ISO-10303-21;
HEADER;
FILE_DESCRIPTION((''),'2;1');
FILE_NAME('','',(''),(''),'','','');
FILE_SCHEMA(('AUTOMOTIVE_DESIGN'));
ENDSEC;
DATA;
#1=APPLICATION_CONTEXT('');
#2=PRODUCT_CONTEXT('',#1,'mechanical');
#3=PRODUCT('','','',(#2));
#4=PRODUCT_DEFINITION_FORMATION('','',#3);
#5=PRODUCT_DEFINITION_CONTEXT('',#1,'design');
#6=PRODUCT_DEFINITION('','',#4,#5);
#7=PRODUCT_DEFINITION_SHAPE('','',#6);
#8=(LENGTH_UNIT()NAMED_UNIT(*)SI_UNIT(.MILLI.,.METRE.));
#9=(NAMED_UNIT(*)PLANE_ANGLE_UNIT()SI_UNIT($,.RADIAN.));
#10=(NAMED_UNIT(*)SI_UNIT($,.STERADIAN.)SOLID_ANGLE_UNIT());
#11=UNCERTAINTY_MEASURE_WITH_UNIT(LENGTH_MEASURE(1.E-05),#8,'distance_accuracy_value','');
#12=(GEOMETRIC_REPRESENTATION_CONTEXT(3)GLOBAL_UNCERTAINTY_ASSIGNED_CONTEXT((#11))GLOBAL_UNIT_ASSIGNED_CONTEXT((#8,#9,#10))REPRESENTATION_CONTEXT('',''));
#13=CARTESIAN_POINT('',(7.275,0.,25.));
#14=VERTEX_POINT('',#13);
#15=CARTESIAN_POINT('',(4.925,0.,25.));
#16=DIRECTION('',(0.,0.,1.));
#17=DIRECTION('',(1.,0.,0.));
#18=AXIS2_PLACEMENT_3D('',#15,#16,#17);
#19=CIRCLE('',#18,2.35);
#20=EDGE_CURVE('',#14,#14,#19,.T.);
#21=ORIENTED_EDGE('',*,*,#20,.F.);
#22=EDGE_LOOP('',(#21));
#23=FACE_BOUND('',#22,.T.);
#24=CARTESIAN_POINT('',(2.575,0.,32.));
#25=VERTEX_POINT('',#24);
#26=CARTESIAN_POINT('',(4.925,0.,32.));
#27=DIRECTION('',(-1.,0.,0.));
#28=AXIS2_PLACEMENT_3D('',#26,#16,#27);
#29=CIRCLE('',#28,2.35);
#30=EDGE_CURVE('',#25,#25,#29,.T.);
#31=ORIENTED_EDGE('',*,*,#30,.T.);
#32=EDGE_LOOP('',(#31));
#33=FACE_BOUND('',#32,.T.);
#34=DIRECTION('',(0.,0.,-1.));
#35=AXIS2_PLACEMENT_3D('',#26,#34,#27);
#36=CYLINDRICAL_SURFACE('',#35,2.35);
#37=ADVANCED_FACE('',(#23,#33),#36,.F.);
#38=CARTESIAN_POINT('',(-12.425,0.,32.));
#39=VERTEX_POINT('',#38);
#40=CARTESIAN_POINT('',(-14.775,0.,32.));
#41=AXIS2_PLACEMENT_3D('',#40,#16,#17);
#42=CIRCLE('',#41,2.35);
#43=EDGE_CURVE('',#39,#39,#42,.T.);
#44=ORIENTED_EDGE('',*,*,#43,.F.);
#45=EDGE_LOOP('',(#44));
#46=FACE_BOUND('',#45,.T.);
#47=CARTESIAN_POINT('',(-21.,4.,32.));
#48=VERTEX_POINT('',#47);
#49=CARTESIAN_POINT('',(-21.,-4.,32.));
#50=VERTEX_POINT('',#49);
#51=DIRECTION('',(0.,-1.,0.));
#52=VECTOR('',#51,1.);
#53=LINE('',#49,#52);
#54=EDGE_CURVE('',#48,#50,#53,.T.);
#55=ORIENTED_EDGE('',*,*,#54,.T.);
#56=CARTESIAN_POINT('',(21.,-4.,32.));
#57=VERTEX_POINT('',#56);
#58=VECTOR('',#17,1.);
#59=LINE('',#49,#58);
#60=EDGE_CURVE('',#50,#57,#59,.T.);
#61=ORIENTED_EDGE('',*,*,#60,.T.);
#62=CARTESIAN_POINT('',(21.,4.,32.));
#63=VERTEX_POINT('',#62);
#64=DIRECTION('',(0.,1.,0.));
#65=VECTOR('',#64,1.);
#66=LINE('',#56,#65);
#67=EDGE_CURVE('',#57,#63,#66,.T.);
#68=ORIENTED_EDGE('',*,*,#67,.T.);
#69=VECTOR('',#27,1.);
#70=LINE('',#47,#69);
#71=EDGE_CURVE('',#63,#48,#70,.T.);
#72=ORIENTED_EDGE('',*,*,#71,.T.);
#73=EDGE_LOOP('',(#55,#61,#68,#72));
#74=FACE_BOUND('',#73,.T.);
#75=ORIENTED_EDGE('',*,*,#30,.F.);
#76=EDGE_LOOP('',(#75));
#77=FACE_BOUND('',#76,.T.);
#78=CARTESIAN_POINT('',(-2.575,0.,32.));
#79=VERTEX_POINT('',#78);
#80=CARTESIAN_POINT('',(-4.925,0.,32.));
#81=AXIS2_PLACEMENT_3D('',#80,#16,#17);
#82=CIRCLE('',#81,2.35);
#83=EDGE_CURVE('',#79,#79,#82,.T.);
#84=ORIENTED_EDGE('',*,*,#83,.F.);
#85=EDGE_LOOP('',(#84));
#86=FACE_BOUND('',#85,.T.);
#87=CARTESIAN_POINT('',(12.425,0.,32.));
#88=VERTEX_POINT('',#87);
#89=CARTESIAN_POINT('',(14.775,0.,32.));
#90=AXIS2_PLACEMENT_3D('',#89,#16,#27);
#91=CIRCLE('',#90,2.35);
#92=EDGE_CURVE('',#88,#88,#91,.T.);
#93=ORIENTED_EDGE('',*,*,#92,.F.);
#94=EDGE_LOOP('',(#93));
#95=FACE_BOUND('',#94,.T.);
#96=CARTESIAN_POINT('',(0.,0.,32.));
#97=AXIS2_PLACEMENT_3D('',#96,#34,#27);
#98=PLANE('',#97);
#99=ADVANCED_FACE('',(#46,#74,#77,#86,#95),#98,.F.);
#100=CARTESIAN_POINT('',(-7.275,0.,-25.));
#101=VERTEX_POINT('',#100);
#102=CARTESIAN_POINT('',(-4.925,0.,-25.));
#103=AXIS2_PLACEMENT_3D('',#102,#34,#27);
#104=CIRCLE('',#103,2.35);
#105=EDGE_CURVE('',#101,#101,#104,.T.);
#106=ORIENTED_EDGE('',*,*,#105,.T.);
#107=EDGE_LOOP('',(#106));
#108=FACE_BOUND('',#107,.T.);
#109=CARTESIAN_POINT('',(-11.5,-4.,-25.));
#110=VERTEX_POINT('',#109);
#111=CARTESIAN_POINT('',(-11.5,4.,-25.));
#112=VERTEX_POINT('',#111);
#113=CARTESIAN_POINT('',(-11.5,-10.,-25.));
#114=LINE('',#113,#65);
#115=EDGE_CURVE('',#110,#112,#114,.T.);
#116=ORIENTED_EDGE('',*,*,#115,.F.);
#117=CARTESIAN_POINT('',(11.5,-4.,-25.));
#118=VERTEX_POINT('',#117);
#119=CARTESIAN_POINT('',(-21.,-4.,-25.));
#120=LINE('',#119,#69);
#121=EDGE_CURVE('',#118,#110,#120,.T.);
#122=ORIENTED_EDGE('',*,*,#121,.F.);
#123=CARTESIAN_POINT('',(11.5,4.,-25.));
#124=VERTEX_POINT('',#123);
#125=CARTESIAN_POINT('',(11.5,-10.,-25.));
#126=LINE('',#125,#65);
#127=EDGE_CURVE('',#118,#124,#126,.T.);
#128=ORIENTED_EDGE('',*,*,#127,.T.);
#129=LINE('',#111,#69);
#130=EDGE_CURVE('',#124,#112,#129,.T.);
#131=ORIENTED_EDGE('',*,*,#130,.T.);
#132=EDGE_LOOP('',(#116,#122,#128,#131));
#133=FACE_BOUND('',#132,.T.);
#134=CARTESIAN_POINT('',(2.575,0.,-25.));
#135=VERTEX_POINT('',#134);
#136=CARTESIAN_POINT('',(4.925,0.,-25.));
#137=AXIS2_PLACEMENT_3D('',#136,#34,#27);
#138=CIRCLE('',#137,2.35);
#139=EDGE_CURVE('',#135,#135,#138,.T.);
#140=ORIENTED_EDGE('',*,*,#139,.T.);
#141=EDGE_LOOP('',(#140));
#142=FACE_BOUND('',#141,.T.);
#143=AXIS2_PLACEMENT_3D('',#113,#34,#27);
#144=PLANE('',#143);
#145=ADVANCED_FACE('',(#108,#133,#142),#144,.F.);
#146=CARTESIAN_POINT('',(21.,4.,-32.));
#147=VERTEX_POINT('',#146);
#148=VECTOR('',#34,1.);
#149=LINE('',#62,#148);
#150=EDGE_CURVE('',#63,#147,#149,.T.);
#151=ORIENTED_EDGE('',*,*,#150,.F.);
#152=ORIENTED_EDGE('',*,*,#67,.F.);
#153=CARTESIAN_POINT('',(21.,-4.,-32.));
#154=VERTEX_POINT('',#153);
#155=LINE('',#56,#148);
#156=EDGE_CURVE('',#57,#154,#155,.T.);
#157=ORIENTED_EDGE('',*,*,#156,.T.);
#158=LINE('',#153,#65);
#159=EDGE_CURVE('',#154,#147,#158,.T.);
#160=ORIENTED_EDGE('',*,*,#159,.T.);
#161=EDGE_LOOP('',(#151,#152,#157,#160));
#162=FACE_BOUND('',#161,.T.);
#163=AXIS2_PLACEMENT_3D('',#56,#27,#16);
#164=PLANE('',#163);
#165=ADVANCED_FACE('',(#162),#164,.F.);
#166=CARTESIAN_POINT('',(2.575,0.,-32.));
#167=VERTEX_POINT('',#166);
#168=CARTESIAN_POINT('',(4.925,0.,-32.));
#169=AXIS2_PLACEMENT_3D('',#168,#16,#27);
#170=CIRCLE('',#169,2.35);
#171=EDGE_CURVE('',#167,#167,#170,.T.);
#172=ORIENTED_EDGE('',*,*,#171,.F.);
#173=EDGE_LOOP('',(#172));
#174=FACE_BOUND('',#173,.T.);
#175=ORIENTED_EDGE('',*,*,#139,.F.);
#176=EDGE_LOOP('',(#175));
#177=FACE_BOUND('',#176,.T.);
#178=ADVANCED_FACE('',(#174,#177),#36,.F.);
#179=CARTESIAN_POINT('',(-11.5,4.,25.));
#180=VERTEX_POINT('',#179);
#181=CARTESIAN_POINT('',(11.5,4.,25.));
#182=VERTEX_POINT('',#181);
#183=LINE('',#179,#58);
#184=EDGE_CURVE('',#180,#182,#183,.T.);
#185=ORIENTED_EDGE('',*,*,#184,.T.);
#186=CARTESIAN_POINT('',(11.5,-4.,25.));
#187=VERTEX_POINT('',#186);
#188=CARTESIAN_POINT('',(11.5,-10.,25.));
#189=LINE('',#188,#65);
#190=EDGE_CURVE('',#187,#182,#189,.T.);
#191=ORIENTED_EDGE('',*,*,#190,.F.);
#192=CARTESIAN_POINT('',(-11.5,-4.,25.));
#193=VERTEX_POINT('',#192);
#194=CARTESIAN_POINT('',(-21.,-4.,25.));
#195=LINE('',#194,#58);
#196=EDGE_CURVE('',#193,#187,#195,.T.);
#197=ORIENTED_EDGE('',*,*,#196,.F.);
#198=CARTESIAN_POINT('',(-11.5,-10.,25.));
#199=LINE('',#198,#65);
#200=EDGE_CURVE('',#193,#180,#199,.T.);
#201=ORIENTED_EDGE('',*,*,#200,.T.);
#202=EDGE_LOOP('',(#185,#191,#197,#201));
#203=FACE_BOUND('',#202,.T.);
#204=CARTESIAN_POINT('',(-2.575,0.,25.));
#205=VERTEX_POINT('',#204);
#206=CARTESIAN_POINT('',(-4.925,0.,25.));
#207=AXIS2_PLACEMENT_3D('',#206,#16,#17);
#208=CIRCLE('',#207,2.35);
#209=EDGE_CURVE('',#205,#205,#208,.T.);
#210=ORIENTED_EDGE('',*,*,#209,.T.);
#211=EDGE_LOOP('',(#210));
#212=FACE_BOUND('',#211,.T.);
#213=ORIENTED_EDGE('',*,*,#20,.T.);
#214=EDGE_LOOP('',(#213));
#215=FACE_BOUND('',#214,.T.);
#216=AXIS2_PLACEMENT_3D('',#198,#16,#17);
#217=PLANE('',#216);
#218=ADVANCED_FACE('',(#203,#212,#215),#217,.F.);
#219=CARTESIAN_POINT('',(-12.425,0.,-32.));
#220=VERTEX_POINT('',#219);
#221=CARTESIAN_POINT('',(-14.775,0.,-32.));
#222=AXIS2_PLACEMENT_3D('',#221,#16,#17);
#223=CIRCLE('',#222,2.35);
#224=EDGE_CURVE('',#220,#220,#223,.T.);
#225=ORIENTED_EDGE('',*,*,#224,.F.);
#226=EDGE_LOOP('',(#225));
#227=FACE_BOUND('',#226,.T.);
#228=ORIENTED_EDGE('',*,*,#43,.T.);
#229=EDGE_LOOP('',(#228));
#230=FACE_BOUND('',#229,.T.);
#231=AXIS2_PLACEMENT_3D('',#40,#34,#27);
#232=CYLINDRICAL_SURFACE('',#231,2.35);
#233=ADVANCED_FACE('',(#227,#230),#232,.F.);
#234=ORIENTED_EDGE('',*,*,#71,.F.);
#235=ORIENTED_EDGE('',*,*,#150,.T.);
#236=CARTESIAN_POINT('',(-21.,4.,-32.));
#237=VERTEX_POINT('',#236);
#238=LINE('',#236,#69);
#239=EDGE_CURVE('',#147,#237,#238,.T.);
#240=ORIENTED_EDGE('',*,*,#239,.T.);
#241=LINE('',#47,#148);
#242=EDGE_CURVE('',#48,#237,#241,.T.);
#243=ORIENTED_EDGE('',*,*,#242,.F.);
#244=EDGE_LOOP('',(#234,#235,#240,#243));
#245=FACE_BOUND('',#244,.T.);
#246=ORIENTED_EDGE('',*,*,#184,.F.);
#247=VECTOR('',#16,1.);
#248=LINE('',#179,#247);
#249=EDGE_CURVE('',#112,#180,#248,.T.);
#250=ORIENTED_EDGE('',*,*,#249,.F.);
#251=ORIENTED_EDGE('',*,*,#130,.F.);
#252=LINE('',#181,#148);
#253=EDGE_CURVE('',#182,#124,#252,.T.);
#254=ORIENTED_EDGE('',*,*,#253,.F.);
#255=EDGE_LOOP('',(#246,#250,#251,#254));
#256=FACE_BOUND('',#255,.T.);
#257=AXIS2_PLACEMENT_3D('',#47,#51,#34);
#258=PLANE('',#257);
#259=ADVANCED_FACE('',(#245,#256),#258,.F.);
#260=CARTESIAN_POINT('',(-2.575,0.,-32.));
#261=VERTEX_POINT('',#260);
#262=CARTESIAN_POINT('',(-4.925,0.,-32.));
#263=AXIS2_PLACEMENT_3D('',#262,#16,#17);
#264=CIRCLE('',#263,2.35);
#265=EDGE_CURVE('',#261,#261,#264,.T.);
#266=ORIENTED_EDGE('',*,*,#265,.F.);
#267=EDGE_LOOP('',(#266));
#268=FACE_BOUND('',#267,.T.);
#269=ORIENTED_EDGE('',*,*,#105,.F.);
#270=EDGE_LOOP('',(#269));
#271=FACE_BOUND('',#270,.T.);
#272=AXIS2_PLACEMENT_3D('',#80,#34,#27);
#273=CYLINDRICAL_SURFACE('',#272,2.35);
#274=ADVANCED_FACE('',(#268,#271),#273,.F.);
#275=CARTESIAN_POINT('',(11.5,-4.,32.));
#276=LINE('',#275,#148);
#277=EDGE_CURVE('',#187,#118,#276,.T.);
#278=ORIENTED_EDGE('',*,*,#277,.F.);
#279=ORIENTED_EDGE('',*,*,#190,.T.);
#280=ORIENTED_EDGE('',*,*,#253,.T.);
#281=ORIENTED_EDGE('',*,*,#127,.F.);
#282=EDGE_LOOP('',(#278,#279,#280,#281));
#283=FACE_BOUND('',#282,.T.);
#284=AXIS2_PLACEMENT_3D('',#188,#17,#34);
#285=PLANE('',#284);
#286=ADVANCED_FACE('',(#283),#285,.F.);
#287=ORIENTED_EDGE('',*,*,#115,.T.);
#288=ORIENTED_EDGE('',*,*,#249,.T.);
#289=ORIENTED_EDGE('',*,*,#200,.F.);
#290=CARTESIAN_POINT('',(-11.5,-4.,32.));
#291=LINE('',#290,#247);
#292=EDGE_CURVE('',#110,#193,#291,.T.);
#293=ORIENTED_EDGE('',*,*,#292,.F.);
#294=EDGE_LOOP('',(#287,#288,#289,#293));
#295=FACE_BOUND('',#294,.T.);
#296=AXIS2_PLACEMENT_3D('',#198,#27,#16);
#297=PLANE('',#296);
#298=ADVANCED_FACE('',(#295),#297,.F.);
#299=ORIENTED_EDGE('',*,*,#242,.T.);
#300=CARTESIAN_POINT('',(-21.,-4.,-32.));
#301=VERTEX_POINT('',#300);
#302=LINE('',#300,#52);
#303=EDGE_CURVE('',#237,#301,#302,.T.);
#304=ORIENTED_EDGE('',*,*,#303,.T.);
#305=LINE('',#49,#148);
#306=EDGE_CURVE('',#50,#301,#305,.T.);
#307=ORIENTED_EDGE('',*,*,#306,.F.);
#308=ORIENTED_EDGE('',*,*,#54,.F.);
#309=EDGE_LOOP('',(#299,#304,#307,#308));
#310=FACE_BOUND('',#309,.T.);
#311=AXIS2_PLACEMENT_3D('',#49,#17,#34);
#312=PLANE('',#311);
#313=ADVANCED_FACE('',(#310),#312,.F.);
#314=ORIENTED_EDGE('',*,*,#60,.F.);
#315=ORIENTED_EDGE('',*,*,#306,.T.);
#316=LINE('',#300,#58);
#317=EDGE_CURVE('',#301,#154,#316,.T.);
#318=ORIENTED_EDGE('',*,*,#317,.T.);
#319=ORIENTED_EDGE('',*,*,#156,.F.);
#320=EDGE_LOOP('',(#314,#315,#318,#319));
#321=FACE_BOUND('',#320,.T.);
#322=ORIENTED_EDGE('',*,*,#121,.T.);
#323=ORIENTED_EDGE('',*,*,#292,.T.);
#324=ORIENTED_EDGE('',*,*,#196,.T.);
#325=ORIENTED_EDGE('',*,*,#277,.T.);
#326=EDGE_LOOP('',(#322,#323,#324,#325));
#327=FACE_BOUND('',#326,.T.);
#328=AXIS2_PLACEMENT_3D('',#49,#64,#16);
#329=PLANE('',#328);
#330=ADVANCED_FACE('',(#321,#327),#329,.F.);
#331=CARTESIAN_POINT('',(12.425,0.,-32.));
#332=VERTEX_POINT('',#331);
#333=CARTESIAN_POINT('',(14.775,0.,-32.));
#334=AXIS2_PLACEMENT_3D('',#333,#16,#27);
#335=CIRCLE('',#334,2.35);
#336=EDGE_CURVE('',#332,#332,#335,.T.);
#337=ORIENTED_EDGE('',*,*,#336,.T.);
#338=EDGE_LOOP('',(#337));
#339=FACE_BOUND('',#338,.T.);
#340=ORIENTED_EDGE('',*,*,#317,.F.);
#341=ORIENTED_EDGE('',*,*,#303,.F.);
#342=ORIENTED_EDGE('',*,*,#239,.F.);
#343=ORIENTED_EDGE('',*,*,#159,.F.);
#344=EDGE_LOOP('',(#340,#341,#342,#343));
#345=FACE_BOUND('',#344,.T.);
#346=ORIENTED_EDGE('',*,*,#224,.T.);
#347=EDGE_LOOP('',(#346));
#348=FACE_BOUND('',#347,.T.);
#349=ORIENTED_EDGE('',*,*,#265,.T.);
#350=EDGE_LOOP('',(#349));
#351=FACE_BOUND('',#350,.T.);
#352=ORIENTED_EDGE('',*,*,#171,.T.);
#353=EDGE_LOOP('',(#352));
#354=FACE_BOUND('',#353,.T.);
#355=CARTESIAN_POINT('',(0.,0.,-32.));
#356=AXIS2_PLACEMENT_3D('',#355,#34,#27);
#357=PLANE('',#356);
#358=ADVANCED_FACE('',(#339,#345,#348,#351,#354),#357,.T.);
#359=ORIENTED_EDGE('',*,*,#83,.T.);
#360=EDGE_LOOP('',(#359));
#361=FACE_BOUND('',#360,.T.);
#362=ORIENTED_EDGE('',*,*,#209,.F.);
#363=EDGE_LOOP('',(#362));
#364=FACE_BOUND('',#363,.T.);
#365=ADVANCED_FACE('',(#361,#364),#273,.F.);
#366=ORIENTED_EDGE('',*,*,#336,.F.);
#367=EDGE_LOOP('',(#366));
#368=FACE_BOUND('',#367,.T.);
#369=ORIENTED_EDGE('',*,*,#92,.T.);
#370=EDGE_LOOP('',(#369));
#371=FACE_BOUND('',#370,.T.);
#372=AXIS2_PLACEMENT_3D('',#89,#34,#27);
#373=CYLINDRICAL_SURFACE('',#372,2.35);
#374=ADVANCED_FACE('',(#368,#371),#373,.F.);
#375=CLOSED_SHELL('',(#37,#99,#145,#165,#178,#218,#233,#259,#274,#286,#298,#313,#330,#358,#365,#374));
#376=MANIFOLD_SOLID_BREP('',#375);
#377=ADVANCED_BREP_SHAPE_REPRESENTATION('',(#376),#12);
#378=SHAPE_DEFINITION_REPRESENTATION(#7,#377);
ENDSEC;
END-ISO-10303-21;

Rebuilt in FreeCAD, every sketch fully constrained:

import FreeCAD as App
import Part
import Sketcher

doc = App.newDocument("Part")
body = doc.addObject("PartDesign::Body", "Body")

sketch1 = doc.addObject("Sketcher::SketchObject", "Sketch")
body.addObject(sketch1)
sketch1.AttachmentSupport = (doc.XY_Plane, [""])
sketch1.MapMode = "FlatFace"
sketch1.addGeometry([
    Part.LineSegment(App.Vector(-21, 4, 0), App.Vector(-21, -4, 0)),
    Part.LineSegment(App.Vector(-21, -4, 0), App.Vector(21, -4, 0)),
    Part.LineSegment(App.Vector(21, -4, 0), App.Vector(21, 4, 0)),
    Part.LineSegment(App.Vector(21, 4, 0), App.Vector(-21, 4, 0)),
    Part.Circle(App.Vector(-14.775, 0, 0), App.Vector(0, 0, 1), 2.35),
    Part.Circle(App.Vector(-4.925, 0, 0), App.Vector(0, 0, 1), 2.35),
    Part.Circle(App.Vector(4.925, 0, 0), App.Vector(0, 0, 1), 2.35),
    Part.Circle(App.Vector(14.775, 0, 0), App.Vector(0, 0, 1), 2.35),
], False)
sketch1.addConstraint([
    Sketcher.Constraint("Coincident", 0, 2, 1, 1),
    Sketcher.Constraint("Coincident", 1, 2, 2, 1),
    Sketcher.Constraint("Coincident", 2, 2, 3, 1),
    Sketcher.Constraint("Coincident", 3, 2, 0, 1),
    Sketcher.Constraint("Vertical", 0),
    Sketcher.Constraint("Horizontal", 1),
    Sketcher.Constraint("Vertical", 2),
    Sketcher.Constraint("Horizontal", 3),
    Sketcher.Constraint("Equal", 4, 5),
    Sketcher.Constraint("Equal", 5, 6),
    Sketcher.Constraint("Equal", 6, 7),
    Sketcher.Constraint("Symmetric", 5, 3, 6, 3, -1, 1),
    Sketcher.Constraint("Symmetric", 4, 3, 7, 3, -1, 1),
    Sketcher.Constraint("Symmetric", 0, 2, 2, 2, -1, 1),
    Sketcher.Constraint("PointOnObject", 4, 3, -1),
    Sketcher.Constraint("PointOnObject", 5, 3, -1),
    Sketcher.Constraint("Diameter", 4, 4.7),
    Sketcher.Constraint("DistanceX", 1, 1, 1, 2, 42.0),
    Sketcher.Constraint("DistanceY", 0, 2, 0, 1, 8.0),
    Sketcher.Constraint("DistanceX", 4, 3, 6, 3, 19.7),
    Sketcher.Constraint("DistanceX", 4, 3, 5, 3, 9.85),
])
pad1 = doc.addObject("PartDesign::Pad", "Pad")
body.addObject(pad1)
pad1.Profile = sketch1
pad1.Length = 64
pad1.Midplane = True

sketch2 = doc.addObject("Sketcher::SketchObject", "Sketch001")
body.addObject(sketch2)
sketch2.AttachmentSupport = (doc.XZ_Plane, [""])
sketch2.MapMode = "FlatFace"
sketch2.AttachmentOffset = App.Placement(App.Vector(0, 0, -4), App.Rotation())
sketch2.addGeometry([
    Part.LineSegment(App.Vector(-11.5, 5, 0), App.Vector(-11.5, 25, 0)),
    Part.LineSegment(App.Vector(-11.5, 25, 0), App.Vector(11.5, 25, 0)),
    Part.LineSegment(App.Vector(11.5, 25, 0), App.Vector(11.5, 5, 0)),
    Part.LineSegment(App.Vector(11.5, 5, 0), App.Vector(-11.5, 5, 0)),
    Part.LineSegment(App.Vector(-11.5, -25, 0), App.Vector(-11.5, -5, 0)),
    Part.LineSegment(App.Vector(-11.5, -5, 0), App.Vector(11.5, -5, 0)),
    Part.LineSegment(App.Vector(11.5, -5, 0), App.Vector(11.5, -25, 0)),
    Part.LineSegment(App.Vector(11.5, -25, 0), App.Vector(-11.5, -25, 0)),
], False)
sketch2.addConstraint([
    Sketcher.Constraint("Coincident", 0, 2, 1, 1),
    Sketcher.Constraint("Coincident", 1, 2, 2, 1),
    Sketcher.Constraint("Coincident", 2, 2, 3, 1),
    Sketcher.Constraint("Coincident", 3, 2, 0, 1),
    Sketcher.Constraint("Coincident", 4, 2, 5, 1),
    Sketcher.Constraint("Coincident", 5, 2, 6, 1),
    Sketcher.Constraint("Coincident", 6, 2, 7, 1),
    Sketcher.Constraint("Coincident", 7, 2, 4, 1),
    Sketcher.Constraint("Vertical", 0),
    Sketcher.Constraint("Horizontal", 1),
    Sketcher.Constraint("Vertical", 2),
    Sketcher.Constraint("Horizontal", 3),
    Sketcher.Constraint("Vertical", 4),
    Sketcher.Constraint("Horizontal", 5),
    Sketcher.Constraint("Vertical", 6),
    Sketcher.Constraint("Horizontal", 7),
    Sketcher.Constraint("Symmetric", 2, 2, 4, 2, -1, 1),
    Sketcher.Constraint("Symmetric", 0, 2, 6, 2, -1, 1),
    Sketcher.Constraint("Vertical", 3, 2, 4, 2),
    Sketcher.Constraint("DistanceX", 1, 1, 1, 2, 23.0),
    Sketcher.Constraint("DistanceY", 0, 1, 0, 2, 20.0),
    Sketcher.Constraint("DistanceY", -1, 1, 0, 2, 25.0),
])
pocket1 = doc.addObject("PartDesign::Pocket", "Pocket")
body.addObject(pocket1)
pocket1.Profile = sketch2
pocket1.Length = 14
pocket1.Reversed = True

sketch3 = doc.addObject("Sketcher::SketchObject", "Sketch002")
body.addObject(sketch3)
sketch3.AttachmentSupport = (doc.XZ_Plane, [""])
sketch3.MapMode = "FlatFace"
sketch3.AttachmentOffset = App.Placement(App.Vector(0, 0, -4), App.Rotation())
sketch3.addGeometry([
    Part.LineSegment(App.Vector(-11.5, -13.591236, 0), App.Vector(-11.5, 13.591236, 0)),
    Part.LineSegment(App.Vector(-11.5, 13.591236, 0), App.Vector(11.5, 13.591236, 0)),
    Part.LineSegment(App.Vector(11.5, 13.591236, 0), App.Vector(11.5, -13.591236, 0)),
    Part.LineSegment(App.Vector(11.5, -13.591236, 0), App.Vector(-11.5, -13.591236, 0)),
], False)
sketch3.addConstraint([
    Sketcher.Constraint("Coincident", 0, 2, 1, 1),
    Sketcher.Constraint("Coincident", 1, 2, 2, 1),
    Sketcher.Constraint("Coincident", 2, 2, 3, 1),
    Sketcher.Constraint("Coincident", 3, 2, 0, 1),
    Sketcher.Constraint("Vertical", 0),
    Sketcher.Constraint("Horizontal", 1),
    Sketcher.Constraint("Vertical", 2),
    Sketcher.Constraint("Horizontal", 3),
    Sketcher.Constraint("Symmetric", 0, 2, 2, 2, -1, 1),
    Sketcher.Constraint("DistanceX", 1, 1, 1, 2, 23.0),
    Sketcher.Constraint("DistanceY", 0, 1, 0, 2, 27.182472),
])
pocket2 = doc.addObject("PartDesign::Pocket", "Pocket001")
body.addObject(pocket2)
pocket2.Profile = sketch3
pocket2.Length = 10
pocket2.Reversed = True

doc.recompute()
